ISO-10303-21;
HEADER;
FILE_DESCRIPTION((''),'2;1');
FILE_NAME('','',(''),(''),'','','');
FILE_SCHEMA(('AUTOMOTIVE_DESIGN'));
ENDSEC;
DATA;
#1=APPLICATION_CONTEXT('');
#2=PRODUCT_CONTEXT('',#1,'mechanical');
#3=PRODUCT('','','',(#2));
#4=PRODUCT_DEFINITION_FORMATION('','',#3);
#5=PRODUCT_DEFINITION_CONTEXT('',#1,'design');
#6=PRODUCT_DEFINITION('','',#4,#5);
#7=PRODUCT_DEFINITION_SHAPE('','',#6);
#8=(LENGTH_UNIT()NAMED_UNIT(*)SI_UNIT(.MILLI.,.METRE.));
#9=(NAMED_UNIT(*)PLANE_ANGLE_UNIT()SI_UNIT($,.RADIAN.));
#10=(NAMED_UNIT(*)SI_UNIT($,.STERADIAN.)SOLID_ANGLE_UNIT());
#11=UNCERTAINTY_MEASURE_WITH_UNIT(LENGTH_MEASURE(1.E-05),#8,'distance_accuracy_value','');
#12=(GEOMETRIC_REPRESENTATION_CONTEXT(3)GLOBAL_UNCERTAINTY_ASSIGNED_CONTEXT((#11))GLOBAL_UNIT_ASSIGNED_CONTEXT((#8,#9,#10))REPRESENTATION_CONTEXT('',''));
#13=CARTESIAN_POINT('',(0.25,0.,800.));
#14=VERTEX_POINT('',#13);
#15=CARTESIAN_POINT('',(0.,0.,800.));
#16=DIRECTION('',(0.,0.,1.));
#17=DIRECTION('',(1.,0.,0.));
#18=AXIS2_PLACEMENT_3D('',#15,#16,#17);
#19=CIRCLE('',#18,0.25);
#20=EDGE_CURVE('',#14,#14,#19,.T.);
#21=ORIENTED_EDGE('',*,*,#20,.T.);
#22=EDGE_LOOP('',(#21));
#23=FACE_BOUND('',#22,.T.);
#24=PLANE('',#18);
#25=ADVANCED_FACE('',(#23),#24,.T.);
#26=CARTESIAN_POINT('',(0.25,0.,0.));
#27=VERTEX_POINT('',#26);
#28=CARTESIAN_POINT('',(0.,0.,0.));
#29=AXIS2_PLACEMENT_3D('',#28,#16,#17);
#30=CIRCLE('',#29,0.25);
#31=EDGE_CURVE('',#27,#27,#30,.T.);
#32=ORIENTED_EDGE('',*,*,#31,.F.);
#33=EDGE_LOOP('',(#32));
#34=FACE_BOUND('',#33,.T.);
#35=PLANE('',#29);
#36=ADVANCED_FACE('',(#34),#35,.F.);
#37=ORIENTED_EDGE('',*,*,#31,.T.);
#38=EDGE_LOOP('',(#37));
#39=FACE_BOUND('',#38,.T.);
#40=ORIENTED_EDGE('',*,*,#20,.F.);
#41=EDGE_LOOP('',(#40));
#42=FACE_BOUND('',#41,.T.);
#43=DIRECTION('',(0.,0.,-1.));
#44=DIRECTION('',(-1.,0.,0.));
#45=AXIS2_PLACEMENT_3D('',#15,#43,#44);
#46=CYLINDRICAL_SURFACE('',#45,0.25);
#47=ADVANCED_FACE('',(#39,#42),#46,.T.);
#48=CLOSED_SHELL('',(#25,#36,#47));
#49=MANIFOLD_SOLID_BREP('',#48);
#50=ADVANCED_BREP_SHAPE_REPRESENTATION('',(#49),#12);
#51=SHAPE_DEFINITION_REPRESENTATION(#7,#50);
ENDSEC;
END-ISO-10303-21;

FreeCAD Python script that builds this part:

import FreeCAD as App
import Part
import Sketcher

V = App.Vector
Q = App.Units.Quantity

doc = App.newDocument("Part")
body = doc.addObject("PartDesign::Body", "Body")

# Sketch on XY plane
sketch1 = body.newObject("Sketcher::SketchObject", "Sketch")
sketch1.AttachmentSupport = (doc.getObject("XY_Plane"), [""])
sketch1.MapMode = "FlatFace"
sketch1.addGeometry(Part.Circle(V(0, 0, 0), V(0, 0, 1), 0.25), False)
sketch1.addConstraint([
    Sketcher.Constraint("Coincident", 0, 3, -1, 1),
    Sketcher.Constraint("Diameter", 0, Q("0.5 mm")),
])
pad1 = body.newObject("PartDesign::Pad", "Pad")
pad1.Profile = sketch1
pad1.Length = 800

doc.recompute()
